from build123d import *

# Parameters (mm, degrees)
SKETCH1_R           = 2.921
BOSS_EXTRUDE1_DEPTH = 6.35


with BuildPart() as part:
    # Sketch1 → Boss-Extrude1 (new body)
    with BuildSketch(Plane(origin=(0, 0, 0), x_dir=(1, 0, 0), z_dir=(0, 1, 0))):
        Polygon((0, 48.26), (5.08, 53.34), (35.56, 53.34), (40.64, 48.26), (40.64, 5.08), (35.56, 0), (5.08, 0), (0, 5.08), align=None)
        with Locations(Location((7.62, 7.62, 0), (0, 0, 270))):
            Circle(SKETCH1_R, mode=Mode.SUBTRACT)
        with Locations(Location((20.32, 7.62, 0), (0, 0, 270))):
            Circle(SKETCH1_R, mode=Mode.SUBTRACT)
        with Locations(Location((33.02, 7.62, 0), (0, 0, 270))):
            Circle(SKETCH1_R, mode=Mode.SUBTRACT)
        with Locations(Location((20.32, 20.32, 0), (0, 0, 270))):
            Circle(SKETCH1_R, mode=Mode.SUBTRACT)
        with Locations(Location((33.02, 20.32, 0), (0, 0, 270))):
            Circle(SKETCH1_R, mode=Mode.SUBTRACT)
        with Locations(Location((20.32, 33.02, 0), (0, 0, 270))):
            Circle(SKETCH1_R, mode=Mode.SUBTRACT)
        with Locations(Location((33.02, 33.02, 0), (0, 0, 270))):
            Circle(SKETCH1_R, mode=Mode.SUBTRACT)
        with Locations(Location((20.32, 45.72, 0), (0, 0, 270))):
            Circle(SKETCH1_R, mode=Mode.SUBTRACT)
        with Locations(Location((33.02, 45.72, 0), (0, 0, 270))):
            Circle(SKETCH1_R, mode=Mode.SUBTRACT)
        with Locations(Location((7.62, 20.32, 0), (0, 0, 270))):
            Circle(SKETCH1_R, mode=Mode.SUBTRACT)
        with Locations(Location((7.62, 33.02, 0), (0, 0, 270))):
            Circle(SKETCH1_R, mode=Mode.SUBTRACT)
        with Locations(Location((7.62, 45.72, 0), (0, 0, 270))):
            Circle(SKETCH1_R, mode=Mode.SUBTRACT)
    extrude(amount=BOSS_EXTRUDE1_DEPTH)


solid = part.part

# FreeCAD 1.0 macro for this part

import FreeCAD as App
import Part
import Sketcher
Q = App.Units.Quantity


def add_polygon(sketch, points):
    """Adds a closed chain of lines whose ends are joined by coincident constraints."""
    first, n = sketch.GeometryCount, len(points)
    for a, b in zip(points, points[1:] + points[:1]):
        sketch.addGeometry(Part.LineSegment(App.Vector(*a, 0), App.Vector(*b, 0)), False)
    for i in range(n):
        sketch.addConstraint(Sketcher.Constraint("Coincident", first + i, 2, first + (i + 1) % n, 1))

doc = App.newDocument("Part")
params = doc.addObject("Spreadsheet::Sheet", "Params")
for row, (alias, value) in enumerate([
    ("sketch1_diameter", "0.23 in"),
    ("sketch1_width", "1.2 in"),
    ("sketch1_height", "1.7 in"),
    ("pad1_length", "0.25 in"),
], start=1):
    params.set(f"A{row}", alias)
    params.set(f"B{row}", "=" + value)
    params.setAlias(f"B{row}", alias)

body = doc.addObject("PartDesign::Body", "Body")

sketch1 = doc.addObject("Sketcher::SketchObject", "Sketch")
body.addObject(sketch1)
sketch1.AttachmentSupport = (doc.XZ_Plane, [""])
sketch1.MapMode = "FlatFace"
add_polygon(sketch1, [(5.08, -53.34), (0, -48.26), (0, -5.08), (5.08, 0), (35.56, 0), (40.64, -5.08), (40.64, -48.26), (35.56, -53.34)])
sketch1.addGeometry(Part.Circle(App.Vector(33.02, -7.62, 0), App.Vector(0, 0, 1), 2.921), False)
sketch1.addGeometry(Part.Circle(App.Vector(33.02, -20.32, 0), App.Vector(0, 0, 1), 2.921), False)
sketch1.addGeometry(Part.Circle(App.Vector(20.32, -7.62, 0), App.Vector(0, 0, 1), 2.921), False)
sketch1.addGeometry(Part.Circle(App.Vector(7.62, -7.62, 0), App.Vector(0, 0, 1), 2.921), False)
sketch1.addGeometry(Part.Circle(App.Vector(20.32, -20.32, 0), App.Vector(0, 0, 1), 2.921), False)
sketch1.addGeometry(Part.Circle(App.Vector(7.62, -20.32, 0), App.Vector(0, 0, 1), 2.921), False)
sketch1.addGeometry(Part.Circle(App.Vector(33.02, -33.02, 0), App.Vector(0, 0, 1), 2.921), False)
sketch1.addGeometry(Part.Circle(App.Vector(33.02, -45.72, 0), App.Vector(0, 0, 1), 2.921), False)
sketch1.addGeometry(Part.Circle(App.Vector(20.32, -33.02, 0), App.Vector(0, 0, 1), 2.921), False)
sketch1.addGeometry(Part.Circle(App.Vector(7.62, -33.02, 0), App.Vector(0, 0, 1), 2.921), False)
sketch1.addGeometry(Part.Circle(App.Vector(20.32, -45.72, 0), App.Vector(0, 0, 1), 2.921), False)
sketch1.addGeometry(Part.Circle(App.Vector(7.62, -45.72, 0), App.Vector(0, 0, 1), 2.921), False)
sketch1.addConstraint([
    Sketcher.Constraint("Vertical", 1),
    Sketcher.Constraint("Horizontal", 3),
    Sketcher.Constraint("Vertical", 5),
    Sketcher.Constraint("Horizontal", 7),
    Sketcher.Constraint("Equal", 8, 9),
    Sketcher.Constraint("Equal", 9, 10),
    Sketcher.Constraint("Equal", 10, 11),
    Sketcher.Constraint("Equal", 11, 12),
    Sketcher.Constraint("Equal", 12, 13),
    Sketcher.Constraint("Equal", 13, 14),
    Sketcher.Constraint("Equal", 14, 15),
    Sketcher.Constraint("Equal", 15, 16),
    Sketcher.Constraint("Equal", 16, 17),
    Sketcher.Constraint("Equal", 17, 18),
    Sketcher.Constraint("Equal", 18, 19),
    Sketcher.Constraint("PointOnObject", 0, 2, -2),
    Sketcher.Constraint("PointOnObject", 2, 2, -1),
    Sketcher.Constraint("Perpendicular", 0, 2),
    Sketcher.Constraint("Perpendicular", 2, 4),
    Sketcher.Constraint("Perpendicular", 4, 6),
    Sketcher.Constraint("Horizontal", 8, 3, 10, 3),
    Sketcher.Constraint("Horizontal", 10, 3, 11, 3),
    Sketcher.Constraint("Horizontal", 9, 3, 12, 3),
    Sketcher.Constraint("Horizontal", 12, 3, 13, 3),
    Sketcher.Constraint("Horizontal", 14, 3, 16, 3),
    Sketcher.Constraint("Horizontal", 16, 3, 17, 3),
    Sketcher.Constraint("Horizontal", 15, 3, 18, 3),
    Sketcher.Constraint("Horizontal", 18, 3, 19, 3),
    Sketcher.Constraint("Horizontal", 1, 2, 4, 2),
    Sketcher.Constraint("Horizontal", 0, 2, 5, 2),
    Sketcher.Constraint("Vertical", 8, 3, 9, 3),
    Sketcher.Constraint("Vertical", 10, 3, 12, 3),
    Sketcher.Constraint("Vertical", 11, 3, 13, 3),
    Sketcher.Constraint("Vertical", 9, 3, 14, 3),
    Sketcher.Constraint("Vertical", 14, 3, 15, 3),
    Sketcher.Constraint("Vertical", 12, 3, 16, 3),
    Sketcher.Constraint("Vertical", 13, 3, 17, 3),
    Sketcher.Constraint("Vertical", 16, 3, 18, 3),
    Sketcher.Constraint("Vertical", 17, 3, 19, 3),
    Sketcher.Constraint("Vertical", 3, 2, 6, 2),
    Sketcher.Constraint("Vertical", 2, 2, 7, 2),
    Sketcher.Constraint("Diameter", 8, Q("0.23 in")),
    Sketcher.Constraint("DistanceX", 3, 1, 3, 2, Q("1.2 in")),
    Sketcher.Constraint("DistanceY", 1, 1, 1, 2, Q("1.7 in")),
    Sketcher.Constraint("DistanceX", 11, 3, 8, 3, Q("1 in")),
    Sketcher.Constraint("DistanceY", 14, 3, 8, 3, Q("1 in")),
    Sketcher.Constraint("DistanceY", 15, 3, 9, 3, Q("1 in")),
    Sketcher.Constraint("DistanceX", -1, 1, 8, 3, Q("1.3 in")),
    Sketcher.Constraint("DistanceY", 8, 3, -1, 1, Q("0.3 in")),
    Sketcher.Constraint("DistanceY", 9, 3, -1, 1, Q("0.8 in")),
    Sketcher.Constraint("DistanceX", -1, 1, 10, 3, Q("0.8 in")),
    Sketcher.Constraint("DistanceY", 0, 2, -1, 1, Q("1.9 in")),
])
sketch1.setExpression("Constraints[49]", "Params.sketch1_diameter")
sketch1.setExpression("Constraints[50]", "Params.sketch1_width")
sketch1.setExpression("Constraints[51]", "Params.sketch1_height")
pad1 = doc.addObject("PartDesign::Pad", "Pad")
body.addObject(pad1)
pad1.Profile = sketch1
pad1.setExpression("Length", "Params.pad1_length")
pad1.Reversed = True

doc.recompute()
